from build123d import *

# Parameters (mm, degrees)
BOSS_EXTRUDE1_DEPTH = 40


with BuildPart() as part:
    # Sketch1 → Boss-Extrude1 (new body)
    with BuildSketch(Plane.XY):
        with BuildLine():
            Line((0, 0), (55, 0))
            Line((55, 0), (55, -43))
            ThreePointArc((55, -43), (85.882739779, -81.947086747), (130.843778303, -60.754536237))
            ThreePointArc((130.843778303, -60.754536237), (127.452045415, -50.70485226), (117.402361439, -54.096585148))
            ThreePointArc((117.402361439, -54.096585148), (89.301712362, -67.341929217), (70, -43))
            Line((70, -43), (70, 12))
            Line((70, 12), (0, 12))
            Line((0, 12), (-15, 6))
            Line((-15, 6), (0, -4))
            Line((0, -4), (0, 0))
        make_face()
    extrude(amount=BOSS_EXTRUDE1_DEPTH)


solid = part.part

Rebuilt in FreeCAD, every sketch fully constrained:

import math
import FreeCAD as App
import Part
import Sketcher
from FreeCAD import Vector
Q = App.Units.Quantity

doc = App.newDocument("Part")
body = doc.addObject("PartDesign::Body", "Body")

# Sketch on XY plane
sketch1 = body.newObject("Sketcher::SketchObject", "Sketch")
sketch1.AttachmentSupport = (doc.getObject("XY_Plane"), [""])
sketch1.MapMode = "FlatFace"
sketch1.addGeometry(Part.LineSegment(Vector(0, 0, 0), Vector(55, 0, 0)), False)
sketch1.addGeometry(Part.LineSegment(Vector(55, 0, 0), Vector(55, -43, 0)), False)
sketch1.addGeometry(Part.ArcOfCircle(Part.Circle(Vector(95, -43, 0), Vector(0, 0, 1), 40), math.radians(180), math.radians(333.649357)), False)
sketch1.addGeometry(Part.ArcOfCircle(Part.Circle(Vector(124.12307, -57.425561, 0), Vector(0, 0, 1), 7.5), math.radians(-26.350643), math.radians(153.649357)), False)
sketch1.addGeometry(Part.ArcOfCircle(Part.Circle(Vector(95, -43, 0), Vector(0, 0, 1), 25), math.radians(180), math.radians(333.649357)), False)
sketch1.addGeometry(Part.LineSegment(Vector(70, -43, 0), Vector(70, 12, 0)), False)
sketch1.addGeometry(Part.LineSegment(Vector(70, 12, 0), Vector(0, 12, 0)), False)
sketch1.addGeometry(Part.LineSegment(Vector(0, 12, 0), Vector(-15, 6, 0)), False)
sketch1.addGeometry(Part.LineSegment(Vector(-15, 6, 0), Vector(0, -4, 0)), False)
sketch1.addGeometry(Part.LineSegment(Vector(0, -4, 0), Vector(0, 0, 0)), False)
sketch1.addConstraint(Sketcher.Constraint("Coincident", 0, 2, 1, 1))
sketch1.addConstraint(Sketcher.Constraint("Tangent", 1, 2, 2, 1))
sketch1.addConstraint(Sketcher.Constraint("Tangent", 2, 2, 3, 1))
sketch1.addConstraint(Sketcher.Constraint("Tangent", 3, 2, 4, 2))
sketch1.addConstraint(Sketcher.Constraint("Tangent", 4, 1, 5, 1))
sketch1.addConstraint(Sketcher.Constraint("Coincident", 5, 2, 6, 1))
sketch1.addConstraint(Sketcher.Constraint("Coincident", 6, 2, 7, 1))
sketch1.addConstraint(Sketcher.Constraint("Coincident", 7, 2, 8, 1))
sketch1.addConstraint(Sketcher.Constraint("Coincident", 8, 2, 9, 1))
sketch1.addConstraint(Sketcher.Constraint("Coincident", 9, 2, 0, 1))
sketch1.addConstraint(Sketcher.Constraint("Horizontal", 0))
sketch1.addConstraint(Sketcher.Constraint("Vertical", 1))
sketch1.addConstraint(Sketcher.Constraint("Vertical", 5))
sketch1.addConstraint(Sketcher.Constraint("Horizontal", 6))
sketch1.addConstraint(Sketcher.Constraint("Vertical", 9))
sketch1.addConstraint(Sketcher.Constraint("Coincident", 9, 2, -1, 1))
sketch1.addConstraint(Sketcher.Constraint("Coincident", 4, 3, 2, 3))
sketch1.addConstraint(Sketcher.Constraint("PointOnObject", 6, 2, -2))
sketch1.addConstraint(Sketcher.Constraint("Equal", 0, 5))
sketch1.addConstraint(Sketcher.Constraint("Radius", 2, Q("40 mm")))
sketch1.addConstraint(Sketcher.Constraint("Radius", 4, Q("25 mm")))
sketch1.addConstraint(Sketcher.Constraint("DistanceX", 0, 1, 0, 2, Q("55 mm")))
sketch1.addConstraint(Sketcher.Constraint("DistanceY", 1, 2, 1, 1, Q("43 mm")))
sketch1.addConstraint(Sketcher.Constraint("DistanceY", 9, 1, 9, 2, Q("4 mm")))
sketch1.addConstraint(Sketcher.Constraint("DistanceX", 7, 2, -1, 1, Q("15 mm")))
sketch1.addConstraint(Sketcher.Constraint("DistanceY", -1, 1, 7, 2, Q("6 mm")))
sketch1.addConstraint(Sketcher.Constraint("DistanceX", -1, 1, 3, 3, Q("124.12307 mm")))
pad1 = body.newObject("PartDesign::Pad", "Pad")
pad1.Profile = sketch1
pad1.Length = 40

doc.recompute()
